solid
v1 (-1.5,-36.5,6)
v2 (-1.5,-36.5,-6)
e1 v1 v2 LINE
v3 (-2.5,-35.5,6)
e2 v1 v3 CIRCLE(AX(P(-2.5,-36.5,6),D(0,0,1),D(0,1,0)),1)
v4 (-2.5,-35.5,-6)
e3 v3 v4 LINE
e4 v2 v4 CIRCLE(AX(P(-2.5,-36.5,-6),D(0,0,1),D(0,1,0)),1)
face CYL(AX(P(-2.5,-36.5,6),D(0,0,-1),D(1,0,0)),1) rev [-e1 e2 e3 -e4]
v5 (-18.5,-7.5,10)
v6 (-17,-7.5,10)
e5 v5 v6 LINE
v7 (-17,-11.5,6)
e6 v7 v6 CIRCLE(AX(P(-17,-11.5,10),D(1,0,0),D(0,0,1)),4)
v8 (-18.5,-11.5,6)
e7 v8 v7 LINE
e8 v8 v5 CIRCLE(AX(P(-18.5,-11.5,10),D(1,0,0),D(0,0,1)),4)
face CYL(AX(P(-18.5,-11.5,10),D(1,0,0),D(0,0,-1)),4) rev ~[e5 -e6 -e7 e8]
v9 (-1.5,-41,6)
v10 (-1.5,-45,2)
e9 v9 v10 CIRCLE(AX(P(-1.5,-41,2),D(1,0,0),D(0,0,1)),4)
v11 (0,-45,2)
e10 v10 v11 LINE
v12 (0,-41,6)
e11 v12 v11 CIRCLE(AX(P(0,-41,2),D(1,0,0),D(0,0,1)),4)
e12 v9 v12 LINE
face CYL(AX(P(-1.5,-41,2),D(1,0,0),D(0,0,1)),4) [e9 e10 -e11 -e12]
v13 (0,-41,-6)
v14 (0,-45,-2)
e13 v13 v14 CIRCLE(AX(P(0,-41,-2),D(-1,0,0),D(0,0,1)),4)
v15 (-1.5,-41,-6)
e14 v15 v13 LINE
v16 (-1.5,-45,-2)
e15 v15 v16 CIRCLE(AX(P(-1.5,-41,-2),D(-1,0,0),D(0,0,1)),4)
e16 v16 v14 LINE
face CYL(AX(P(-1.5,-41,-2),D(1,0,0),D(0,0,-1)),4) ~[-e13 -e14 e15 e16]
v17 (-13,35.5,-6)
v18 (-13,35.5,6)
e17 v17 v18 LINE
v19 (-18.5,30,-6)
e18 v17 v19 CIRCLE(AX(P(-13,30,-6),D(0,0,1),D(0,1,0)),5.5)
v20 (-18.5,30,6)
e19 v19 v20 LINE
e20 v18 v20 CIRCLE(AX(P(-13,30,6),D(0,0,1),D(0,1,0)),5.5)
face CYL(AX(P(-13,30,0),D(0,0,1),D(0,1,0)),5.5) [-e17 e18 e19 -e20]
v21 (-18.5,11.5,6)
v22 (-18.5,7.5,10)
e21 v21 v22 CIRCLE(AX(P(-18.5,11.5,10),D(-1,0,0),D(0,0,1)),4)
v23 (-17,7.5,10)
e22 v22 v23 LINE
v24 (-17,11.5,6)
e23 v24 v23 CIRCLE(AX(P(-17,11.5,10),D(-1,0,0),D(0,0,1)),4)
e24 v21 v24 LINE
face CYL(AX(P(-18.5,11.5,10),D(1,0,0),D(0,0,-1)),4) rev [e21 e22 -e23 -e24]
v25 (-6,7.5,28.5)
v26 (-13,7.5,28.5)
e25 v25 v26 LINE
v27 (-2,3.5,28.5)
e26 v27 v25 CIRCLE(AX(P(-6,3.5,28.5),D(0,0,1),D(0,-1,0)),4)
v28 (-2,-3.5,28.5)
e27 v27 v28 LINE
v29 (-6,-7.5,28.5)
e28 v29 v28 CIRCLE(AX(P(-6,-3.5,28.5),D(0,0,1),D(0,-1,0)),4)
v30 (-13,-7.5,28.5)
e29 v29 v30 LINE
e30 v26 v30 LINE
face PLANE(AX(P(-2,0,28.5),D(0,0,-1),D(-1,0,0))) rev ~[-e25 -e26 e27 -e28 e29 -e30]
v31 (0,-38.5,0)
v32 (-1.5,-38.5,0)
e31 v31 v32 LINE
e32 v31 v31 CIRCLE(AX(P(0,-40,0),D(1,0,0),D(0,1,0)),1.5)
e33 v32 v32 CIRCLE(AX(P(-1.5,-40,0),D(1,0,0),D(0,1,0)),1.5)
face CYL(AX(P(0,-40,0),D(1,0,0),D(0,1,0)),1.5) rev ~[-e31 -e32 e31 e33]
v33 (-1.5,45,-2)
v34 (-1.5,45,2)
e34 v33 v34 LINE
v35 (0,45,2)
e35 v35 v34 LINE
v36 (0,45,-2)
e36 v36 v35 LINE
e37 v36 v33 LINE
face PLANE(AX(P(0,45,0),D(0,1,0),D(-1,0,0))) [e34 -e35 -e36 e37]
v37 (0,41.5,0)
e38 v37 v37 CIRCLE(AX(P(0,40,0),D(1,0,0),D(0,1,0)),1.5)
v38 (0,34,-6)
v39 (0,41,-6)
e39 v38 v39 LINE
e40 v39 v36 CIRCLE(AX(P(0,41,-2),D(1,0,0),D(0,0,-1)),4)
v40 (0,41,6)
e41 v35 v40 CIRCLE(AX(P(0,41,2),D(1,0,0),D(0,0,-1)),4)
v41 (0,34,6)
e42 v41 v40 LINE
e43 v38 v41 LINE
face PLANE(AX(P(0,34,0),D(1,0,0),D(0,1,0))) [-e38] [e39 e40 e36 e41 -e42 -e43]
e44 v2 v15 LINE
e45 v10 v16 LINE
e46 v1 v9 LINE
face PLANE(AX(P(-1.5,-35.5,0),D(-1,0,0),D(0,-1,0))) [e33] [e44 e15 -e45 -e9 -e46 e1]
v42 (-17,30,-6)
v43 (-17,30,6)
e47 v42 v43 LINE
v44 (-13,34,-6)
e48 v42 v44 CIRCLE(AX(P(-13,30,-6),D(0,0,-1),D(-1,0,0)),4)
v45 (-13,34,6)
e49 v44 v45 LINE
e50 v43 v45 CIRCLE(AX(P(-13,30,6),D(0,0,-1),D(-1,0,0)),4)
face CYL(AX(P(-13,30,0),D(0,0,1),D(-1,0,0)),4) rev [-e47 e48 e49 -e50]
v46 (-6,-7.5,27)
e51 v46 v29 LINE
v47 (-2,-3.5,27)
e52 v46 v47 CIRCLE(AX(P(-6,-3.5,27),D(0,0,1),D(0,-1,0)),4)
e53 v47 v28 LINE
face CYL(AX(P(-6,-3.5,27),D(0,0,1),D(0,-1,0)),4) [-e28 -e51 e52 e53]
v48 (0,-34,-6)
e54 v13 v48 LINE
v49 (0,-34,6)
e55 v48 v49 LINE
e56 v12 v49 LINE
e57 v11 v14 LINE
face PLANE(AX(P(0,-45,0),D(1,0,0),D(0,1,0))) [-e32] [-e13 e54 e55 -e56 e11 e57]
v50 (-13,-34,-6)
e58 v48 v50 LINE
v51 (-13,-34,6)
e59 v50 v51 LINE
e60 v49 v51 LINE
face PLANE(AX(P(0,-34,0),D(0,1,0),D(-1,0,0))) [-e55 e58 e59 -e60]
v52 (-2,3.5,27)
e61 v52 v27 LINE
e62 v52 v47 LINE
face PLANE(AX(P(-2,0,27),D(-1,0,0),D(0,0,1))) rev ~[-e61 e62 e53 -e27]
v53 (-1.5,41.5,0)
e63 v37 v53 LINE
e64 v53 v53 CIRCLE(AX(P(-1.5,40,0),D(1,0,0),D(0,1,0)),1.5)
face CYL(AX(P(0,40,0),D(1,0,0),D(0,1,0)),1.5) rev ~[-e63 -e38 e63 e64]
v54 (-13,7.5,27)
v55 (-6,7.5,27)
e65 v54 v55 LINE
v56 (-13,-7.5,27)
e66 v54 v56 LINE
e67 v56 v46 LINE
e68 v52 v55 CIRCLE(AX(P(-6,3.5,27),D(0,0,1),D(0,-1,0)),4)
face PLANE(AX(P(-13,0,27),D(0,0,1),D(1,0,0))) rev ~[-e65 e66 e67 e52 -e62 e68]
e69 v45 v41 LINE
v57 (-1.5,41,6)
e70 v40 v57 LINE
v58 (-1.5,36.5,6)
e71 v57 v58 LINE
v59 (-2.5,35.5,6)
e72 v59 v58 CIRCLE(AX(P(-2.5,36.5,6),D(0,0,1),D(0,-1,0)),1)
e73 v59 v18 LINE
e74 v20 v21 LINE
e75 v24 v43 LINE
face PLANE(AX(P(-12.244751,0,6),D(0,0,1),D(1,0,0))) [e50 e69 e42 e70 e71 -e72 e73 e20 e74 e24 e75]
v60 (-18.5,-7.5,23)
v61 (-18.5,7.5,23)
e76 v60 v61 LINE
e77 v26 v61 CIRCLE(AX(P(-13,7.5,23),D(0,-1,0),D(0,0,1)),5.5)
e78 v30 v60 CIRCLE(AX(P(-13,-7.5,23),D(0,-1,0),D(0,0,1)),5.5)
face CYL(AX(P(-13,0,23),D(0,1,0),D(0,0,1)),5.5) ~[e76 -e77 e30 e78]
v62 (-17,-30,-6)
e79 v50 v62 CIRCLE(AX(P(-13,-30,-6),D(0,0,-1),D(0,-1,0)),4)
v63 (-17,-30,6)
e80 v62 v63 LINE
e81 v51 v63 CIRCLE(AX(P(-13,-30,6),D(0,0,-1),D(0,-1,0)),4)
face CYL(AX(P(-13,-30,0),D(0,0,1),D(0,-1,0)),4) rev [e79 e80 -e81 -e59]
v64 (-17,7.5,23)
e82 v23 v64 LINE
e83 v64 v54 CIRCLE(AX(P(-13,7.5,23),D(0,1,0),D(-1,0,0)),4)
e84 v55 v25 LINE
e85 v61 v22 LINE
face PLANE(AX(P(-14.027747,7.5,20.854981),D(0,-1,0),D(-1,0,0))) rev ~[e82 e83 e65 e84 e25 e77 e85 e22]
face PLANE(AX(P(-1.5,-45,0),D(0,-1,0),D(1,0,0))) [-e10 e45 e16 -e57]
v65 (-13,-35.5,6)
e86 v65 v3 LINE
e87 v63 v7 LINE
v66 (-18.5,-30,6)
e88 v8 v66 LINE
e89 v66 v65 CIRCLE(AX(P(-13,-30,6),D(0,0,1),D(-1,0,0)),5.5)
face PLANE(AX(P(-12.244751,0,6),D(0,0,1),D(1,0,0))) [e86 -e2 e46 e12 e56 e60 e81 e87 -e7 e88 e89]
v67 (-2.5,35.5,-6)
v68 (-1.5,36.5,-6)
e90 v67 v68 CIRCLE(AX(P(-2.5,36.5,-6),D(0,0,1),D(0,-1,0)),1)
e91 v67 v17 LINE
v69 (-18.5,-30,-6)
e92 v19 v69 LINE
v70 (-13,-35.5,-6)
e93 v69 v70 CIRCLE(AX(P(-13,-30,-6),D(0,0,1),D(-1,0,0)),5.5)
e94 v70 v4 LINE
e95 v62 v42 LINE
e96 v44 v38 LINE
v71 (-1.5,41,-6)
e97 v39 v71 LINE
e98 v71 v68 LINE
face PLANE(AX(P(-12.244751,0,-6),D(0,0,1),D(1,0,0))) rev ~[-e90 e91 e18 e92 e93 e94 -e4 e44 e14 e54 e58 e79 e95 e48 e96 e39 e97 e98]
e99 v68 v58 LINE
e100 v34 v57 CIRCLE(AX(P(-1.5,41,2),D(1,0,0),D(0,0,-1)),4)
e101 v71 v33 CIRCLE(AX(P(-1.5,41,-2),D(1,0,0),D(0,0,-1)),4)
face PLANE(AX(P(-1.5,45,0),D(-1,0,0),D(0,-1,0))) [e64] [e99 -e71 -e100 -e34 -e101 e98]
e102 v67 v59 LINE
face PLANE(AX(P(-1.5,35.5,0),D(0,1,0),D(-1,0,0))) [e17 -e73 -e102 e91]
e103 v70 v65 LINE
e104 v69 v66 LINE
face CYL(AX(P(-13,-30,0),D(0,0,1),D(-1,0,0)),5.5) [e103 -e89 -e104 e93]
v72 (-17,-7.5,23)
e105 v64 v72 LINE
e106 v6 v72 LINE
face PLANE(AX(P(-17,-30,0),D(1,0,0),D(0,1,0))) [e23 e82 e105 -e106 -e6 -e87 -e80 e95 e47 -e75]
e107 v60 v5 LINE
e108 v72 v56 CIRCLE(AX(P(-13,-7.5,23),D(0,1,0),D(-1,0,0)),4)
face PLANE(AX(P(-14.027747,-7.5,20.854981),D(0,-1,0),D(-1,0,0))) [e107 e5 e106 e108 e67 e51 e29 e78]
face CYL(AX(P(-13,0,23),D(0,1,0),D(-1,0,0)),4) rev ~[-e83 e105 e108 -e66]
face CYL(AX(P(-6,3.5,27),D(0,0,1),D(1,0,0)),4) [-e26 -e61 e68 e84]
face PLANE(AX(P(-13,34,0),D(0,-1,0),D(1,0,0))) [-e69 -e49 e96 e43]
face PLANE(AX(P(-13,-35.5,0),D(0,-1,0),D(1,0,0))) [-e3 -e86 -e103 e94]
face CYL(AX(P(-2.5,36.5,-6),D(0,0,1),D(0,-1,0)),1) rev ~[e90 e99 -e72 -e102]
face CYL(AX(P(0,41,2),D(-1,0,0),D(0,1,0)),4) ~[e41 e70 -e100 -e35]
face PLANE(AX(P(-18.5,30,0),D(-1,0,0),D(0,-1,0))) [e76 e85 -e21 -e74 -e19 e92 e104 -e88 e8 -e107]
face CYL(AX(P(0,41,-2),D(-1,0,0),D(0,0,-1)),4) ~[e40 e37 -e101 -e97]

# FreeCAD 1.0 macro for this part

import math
import FreeCAD as App
import Part
import Sketcher
Q = App.Units.Quantity


def edges_at(feature, points):
    """Names of the edges that pass closest to the given points."""
    edges = feature.Shape.Edges
    near = lambda p: min(range(len(edges)), key=lambda i: edges[i].distToShape(Part.Vertex(*p))[0])
    return sorted({f"Edge{near(p) + 1}" for p in points})

doc = App.newDocument("Part")
params = doc.addObject("Spreadsheet::Sheet", "Params")
for row, (alias, value) in enumerate([
    ("sketch1_radius", "4 mm"),
    ("sketch1_radius2", "5.5 mm"),
    ("sketch1_width", "13 mm"),
    ("sketch1_height", "11 mm"),
    ("sketch1_height2", "60 mm"),
    ("pad1_length", "12 mm"),
    ("sketch2_radius", "4 mm"),
    ("sketch2_radius2", "5.5 mm"),
    ("sketch2_width", "11 mm"),
    ("sketch2_height", "17 mm"),
    ("pad2_length", "15 mm"),
    ("fillet_radius", "4 mm"),
    ("fillet2_radius", "1 mm"),
    ("sketch3_diameter", "3 mm"),
], start=1):
    params.set(f"A{row}", alias)
    params.set(f"B{row}", "=" + value)
    params.setAlias(f"B{row}", alias)

body = doc.addObject("PartDesign::Body", "Body")

# Sketch on XY plane
sketch1 = body.newObject("Sketcher::SketchObject", "Sketch")
sketch1.AttachmentSupport = (doc.getObject("XY_Plane"), [""])
sketch1.MapMode = "FlatFace"
sketch1.addGeometry([
    Part.LineSegment(App.Vector(0, -45, 0), App.Vector(0, -34, 0)),  # 0
    Part.LineSegment(App.Vector(0, -34, 0), App.Vector(-13, -34, 0)),  # 1
    Part.ArcOfCircle(Part.Circle(App.Vector(-13, -30, 0), App.Vector(0, 0, 1), 4), math.radians(180), math.radians(270)),  # 2
    Part.LineSegment(App.Vector(-17, -30, 0), App.Vector(-17, 30, 0)),  # 3
    Part.ArcOfCircle(Part.Circle(App.Vector(-13, 30, 0), App.Vector(0, 0, 1), 4), math.radians(90), math.radians(180)),  # 4
    Part.LineSegment(App.Vector(-13, 34, 0), App.Vector(0, 34, 0)),  # 5
    Part.LineSegment(App.Vector(0, 34, 0), App.Vector(0, 45, 0)),  # 6
    Part.LineSegment(App.Vector(0, 45, 0), App.Vector(-1.5, 45, 0)),  # 7
    Part.LineSegment(App.Vector(-1.5, 45, 0), App.Vector(-1.5, 35.5, 0)),  # 8
    Part.LineSegment(App.Vector(-1.5, 35.5, 0), App.Vector(-13, 35.5, 0)),  # 9
    Part.ArcOfCircle(Part.Circle(App.Vector(-13, 30, 0), App.Vector(0, 0, 1), 5.5), math.radians(90), math.radians(180)),  # 10
    Part.LineSegment(App.Vector(-18.5, 30, 0), App.Vector(-18.5, -30, 0)),  # 11
    Part.ArcOfCircle(Part.Circle(App.Vector(-13, -30, 0), App.Vector(0, 0, 1), 5.5), math.radians(180), math.radians(270)),  # 12
    Part.LineSegment(App.Vector(-13, -35.5, 0), App.Vector(-1.5, -35.5, 0)),  # 13
    Part.LineSegment(App.Vector(-1.5, -35.5, 0), App.Vector(-1.5, -45, 0)),  # 14
    Part.LineSegment(App.Vector(-1.5, -45, 0), App.Vector(0, -45, 0)),  # 15
], False)
sketch1.addConstraint([
    Sketcher.Constraint("Coincident", 0, 2, 1, 1),
    Sketcher.Constraint("Tangent", 1, 2, 2, 2),
    Sketcher.Constraint("Tangent", 2, 1, 3, 1),
    Sketcher.Constraint("Tangent", 3, 2, 4, 2),
    Sketcher.Constraint("Tangent", 4, 1, 5, 1),
    Sketcher.Constraint("Coincident", 5, 2, 6, 1),
    Sketcher.Constraint("Coincident", 6, 2, 7, 1),
    Sketcher.Constraint("Coincident", 7, 2, 8, 1),
    Sketcher.Constraint("Coincident", 8, 2, 9, 1),
    Sketcher.Constraint("Tangent", 9, 2, 10, 1),
    Sketcher.Constraint("Tangent", 10, 2, 11, 1),
    Sketcher.Constraint("Tangent", 11, 2, 12, 1),
    Sketcher.Constraint("Tangent", 12, 2, 13, 1),
    Sketcher.Constraint("Coincident", 13, 2, 14, 1),
    Sketcher.Constraint("Coincident", 14, 2, 15, 1),
    Sketcher.Constraint("Coincident", 15, 2, 0, 1),
    Sketcher.Constraint("Vertical", 0),
    Sketcher.Constraint("Horizontal", 1),
    Sketcher.Constraint("Vertical", 3),
    Sketcher.Constraint("Horizontal", 5),
    Sketcher.Constraint("Vertical", 6),
    Sketcher.Constraint("Horizontal", 7),
    Sketcher.Constraint("Vertical", 8),
    Sketcher.Constraint("Horizontal", 9),
    Sketcher.Constraint("Vertical", 11),
    Sketcher.Constraint("Horizontal", 13),
    Sketcher.Constraint("Vertical", 14),
    Sketcher.Constraint("Horizontal", 15),
    Sketcher.Constraint("Coincident", 10, 3, 4, 3),
    Sketcher.Constraint("Coincident", 12, 3, 2, 3),
    Sketcher.Constraint("Equal", 2, 4),
    Sketcher.Constraint("Symmetric", 0, 2, 5, 2, -1, 1),
    Sketcher.Constraint("Symmetric", 7, 2, 14, 2, -1),
    Sketcher.Constraint("PointOnObject", 0, 2, -2),
    Sketcher.Constraint("Radius", 2, Q("4 mm")),
    Sketcher.Constraint("Radius", 10, Q("5.5 mm")),
    Sketcher.Constraint("DistanceX", 1, 2, 1, 1, Q("13 mm")),
    Sketcher.Constraint("DistanceY", 0, 1, 0, 2, Q("11 mm")),
    Sketcher.Constraint("DistanceY", 3, 1, 3, 2, Q("60 mm")),
    Sketcher.Constraint("DistanceX", 7, 2, 7, 1, Q("1.5 mm")),
])
sketch1.setExpression("Constraints[34]", "Params.sketch1_radius")
sketch1.setExpression("Constraints[35]", "Params.sketch1_radius2")
sketch1.setExpression("Constraints[36]", "Params.sketch1_width")
sketch1.setExpression("Constraints[37]", "Params.sketch1_height")
sketch1.setExpression("Constraints[38]", "Params.sketch1_height2")
pad1 = body.newObject("PartDesign::Pad", "Pad")
pad1.Profile = sketch1
pad1.setExpression("Length", "Params.pad1_length")
pad1.Midplane = True

# Sketch on XZ plane
sketch2 = body.newObject("Sketcher::SketchObject", "Sketch001")
sketch2.AttachmentSupport = (doc.getObject("XZ_Plane"), [""])
sketch2.MapMode = "FlatFace"
sketch2.addGeometry([
    Part.LineSegment(App.Vector(-17, 23, 0), App.Vector(-17, 6, 0)),  # 0
    Part.LineSegment(App.Vector(-17, 6, 0), App.Vector(-18.5, 6, 0)),  # 1
    Part.LineSegment(App.Vector(-18.5, 6, 0), App.Vector(-18.5, 23, 0)),  # 2
    Part.ArcOfCircle(Part.Circle(App.Vector(-13, 23, 0), App.Vector(0, 0, 1), 5.5), math.radians(90), math.radians(180)),  # 3
    Part.LineSegment(App.Vector(-13, 28.5, 0), App.Vector(-2, 28.5, 0)),  # 4
    Part.LineSegment(App.Vector(-2, 28.5, 0), App.Vector(-2, 27, 0)),  # 5
    Part.LineSegment(App.Vector(-2, 27, 0), App.Vector(-13, 27, 0)),  # 6
    Part.ArcOfCircle(Part.Circle(App.Vector(-13, 23, 0), App.Vector(0, 0, 1), 4), math.radians(90), math.radians(180)),  # 7
], False)
sketch2.addConstraint([
    Sketcher.Constraint("Coincident", 0, 2, 1, 1),
    Sketcher.Constraint("Coincident", 1, 2, 2, 1),
    Sketcher.Constraint("Tangent", 2, 2, 3, 2),
    Sketcher.Constraint("Tangent", 3, 1, 4, 1),
    Sketcher.Constraint("Coincident", 4, 2, 5, 1),
    Sketcher.Constraint("Coincident", 5, 2, 6, 1),
    Sketcher.Constraint("Tangent", 6, 2, 7, 1),
    Sketcher.Constraint("Tangent", 7, 2, 0, 1),
    Sketcher.Constraint("Vertical", 0),
    Sketcher.Constraint("Horizontal", 1),
    Sketcher.Constraint("Vertical", 2),
    Sketcher.Constraint("Horizontal", 4),
    Sketcher.Constraint("Vertical", 5),
    Sketcher.Constraint("Horizontal", 6),
    Sketcher.Constraint("Coincident", 7, 3, 3, 3),
    Sketcher.Constraint("Radius", 7, Q("4 mm")),
    Sketcher.Constraint("Radius", 3, Q("5.5 mm")),
    Sketcher.Constraint("DistanceX", 4, 1, 4, 2, Q("11 mm")),
    Sketcher.Constraint("DistanceY", 0, 2, 0, 1, Q("17 mm")),
    Sketcher.Constraint("DistanceX", 3, 3, -1, 1, Q("13 mm")),
    Sketcher.Constraint("DistanceY", -1, 1, 3, 3, Q("23 mm")),
])
sketch2.setExpression("Constraints[15]", "Params.sketch2_radius")
sketch2.setExpression("Constraints[16]", "Params.sketch2_radius2")
sketch2.setExpression("Constraints[17]", "Params.sketch2_width")
sketch2.setExpression("Constraints[18]", "Params.sketch2_height")
pad2 = body.newObject("PartDesign::Pad", "Pad001")
pad2.Profile = sketch2
pad2.setExpression("Length", "Params.pad2_length")
pad2.Midplane = True
doc.recompute()

fillet = body.newObject("PartDesign::Fillet", "Fillet")
fillet.Base = (pad2, edges_at(pad2, [
    (-0.75, 45, -6),
    (-0.75, 45, 6),
    (-2, 7.5, 27.75),
    (-2, -7.5, 27.75),
    (-0.75, -45, -6),
    (-0.75, -45, 6),
    (-17.75, -7.5, 6),
    (-17.75, 7.5, 6),
]))
fillet.setExpression("Radius", "Params.fillet_radius")
doc.recompute()

fillet2 = body.newObject("PartDesign::Fillet", "Fillet001")
fillet2.Base = (fillet, edges_at(fillet, [(-1.5, -35.5, 0), (-1.5, 35.5, 0)]))
fillet2.setExpression("Radius", "Params.fillet2_radius")

# Sketch on YZ plane
sketch3 = body.newObject("Sketcher::SketchObject", "Sketch002")
sketch3.AttachmentSupport = (doc.getObject("YZ_Plane"), [""])
sketch3.MapMode = "FlatFace"
sketch3.addGeometry([
    Part.Circle(App.Vector(40, 0, 0), App.Vector(0, 0, 1), 1.5),
    Part.Circle(App.Vector(-40, 0, 0), App.Vector(0, 0, 1), 1.5),
], False)
sketch3.addConstraint([
    Sketcher.Constraint("Equal", 0, 1),
    Sketcher.Constraint("Symmetric", 0, 3, 1, 3, -1, 1),
    Sketcher.Constraint("PointOnObject", 0, 3, -1),
    Sketcher.Constraint("Diameter", 0, Q("3 mm")),
    Sketcher.Constraint("DistanceX", -1, 1, 0, 3, Q("40 mm")),
])
sketch3.setExpression("Constraints[3]", "Params.sketch3_diameter")
pocket1 = body.newObject("PartDesign::Pocket", "Pocket")
pocket1.Profile = sketch3
pocket1.Type = "ThroughAll"

doc.recompute()
